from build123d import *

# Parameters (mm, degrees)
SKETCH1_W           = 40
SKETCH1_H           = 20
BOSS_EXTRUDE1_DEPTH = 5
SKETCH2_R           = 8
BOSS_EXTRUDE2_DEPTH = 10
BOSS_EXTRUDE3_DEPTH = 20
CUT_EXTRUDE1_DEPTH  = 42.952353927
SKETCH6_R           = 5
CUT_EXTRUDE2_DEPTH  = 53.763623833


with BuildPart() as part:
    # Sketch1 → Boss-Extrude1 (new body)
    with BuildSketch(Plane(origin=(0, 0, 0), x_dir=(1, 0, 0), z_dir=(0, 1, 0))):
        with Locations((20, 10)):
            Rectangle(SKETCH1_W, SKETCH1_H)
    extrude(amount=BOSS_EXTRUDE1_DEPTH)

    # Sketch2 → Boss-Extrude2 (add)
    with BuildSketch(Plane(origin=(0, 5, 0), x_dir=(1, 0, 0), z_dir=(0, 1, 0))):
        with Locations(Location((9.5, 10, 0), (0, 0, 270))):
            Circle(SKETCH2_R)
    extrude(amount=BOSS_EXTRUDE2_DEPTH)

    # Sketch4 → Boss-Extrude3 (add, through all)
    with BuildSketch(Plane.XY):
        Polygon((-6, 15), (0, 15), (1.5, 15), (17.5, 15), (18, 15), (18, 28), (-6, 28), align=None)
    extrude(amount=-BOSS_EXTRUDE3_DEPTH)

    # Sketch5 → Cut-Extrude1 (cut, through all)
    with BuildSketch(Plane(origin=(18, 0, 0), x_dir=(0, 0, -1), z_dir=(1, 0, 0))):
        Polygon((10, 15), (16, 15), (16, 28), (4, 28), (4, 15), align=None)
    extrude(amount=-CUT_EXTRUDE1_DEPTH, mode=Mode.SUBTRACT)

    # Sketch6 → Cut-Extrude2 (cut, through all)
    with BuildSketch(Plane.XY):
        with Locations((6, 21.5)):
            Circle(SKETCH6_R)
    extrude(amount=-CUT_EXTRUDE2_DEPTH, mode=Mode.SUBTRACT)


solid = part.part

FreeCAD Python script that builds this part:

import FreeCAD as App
import Part
import Sketcher
from FreeCAD import Vector

doc = App.newDocument("Part")
body = doc.addObject("PartDesign::Body", "Body")

sketch1 = body.newObject("Sketcher::SketchObject", "Sketch")
sketch1.AttachmentSupport = (doc.getObject("XZ_Plane"), [""])
sketch1.MapMode = "FlatFace"
sketch1.addGeometry(Part.LineSegment(Vector(0, -20, 0), Vector(0, 0, 0)), False)
sketch1.addGeometry(Part.LineSegment(Vector(0, 0, 0), Vector(40, 0, 0)), False)
sketch1.addGeometry(Part.LineSegment(Vector(40, 0, 0), Vector(40, -20, 0)), False)
sketch1.addGeometry(Part.LineSegment(Vector(40, -20, 0), Vector(0, -20, 0)), False)
sketch1.addConstraint(Sketcher.Constraint("Coincident", 0, 2, 1, 1))
sketch1.addConstraint(Sketcher.Constraint("Coincident", 1, 2, 2, 1))
sketch1.addConstraint(Sketcher.Constraint("Coincident", 2, 2, 3, 1))
sketch1.addConstraint(Sketcher.Constraint("Coincident", 3, 2, 0, 1))
sketch1.addConstraint(Sketcher.Constraint("Vertical", 0))
sketch1.addConstraint(Sketcher.Constraint("Horizontal", 1))
sketch1.addConstraint(Sketcher.Constraint("Vertical", 2))
sketch1.addConstraint(Sketcher.Constraint("Horizontal", 3))
sketch1.addConstraint(Sketcher.Constraint("Coincident", 0, 2, -1, 1))
sketch1.addConstraint(Sketcher.Constraint("DistanceX", 1, 1, 1, 2, 40.0))
sketch1.addConstraint(Sketcher.Constraint("DistanceY", 0, 1, 0, 2, 20.0))
pad1 = body.newObject("PartDesign::Pad", "Pad")
pad1.Profile = sketch1
pad1.Length = 5
pad1.Reversed = True

sketch2 = body.newObject("Sketcher::SketchObject", "Sketch001")
sketch2.AttachmentSupport = (doc.getObject("XZ_Plane"), [""])
sketch2.MapMode = "FlatFace"
sketch2.AttachmentOffset = App.Placement(Vector(0, 0, -5), App.Rotation())
sketch2.addGeometry(Part.Circle(Vector(9.5, -10, 0), Vector(0, 0, 1), 8), False)
sketch2.addConstraint(Sketcher.Constraint("Diameter", 0, 16.0))
sketch2.addConstraint(Sketcher.Constraint("DistanceY", 0, 3, -1, 1, 10.0))
sketch2.addConstraint(Sketcher.Constraint("DistanceX", -1, 1, 0, 3, 9.5))
pad2 = body.newObject("PartDesign::Pad", "Pad001")
pad2.Profile = sketch2
pad2.Length = 10
pad2.Reversed = True

sketch3 = body.newObject("Sketcher::SketchObject", "Sketch002")
sketch3.AttachmentSupport = (doc.getObject("XY_Plane"), [""])
sketch3.MapMode = "FlatFace"
sketch3.addGeometry(Part.LineSegment(Vector(-6, 15, 0), Vector(18, 15, 0)), False)
sketch3.addGeometry(Part.LineSegment(Vector(18, 15, 0), Vector(18, 28, 0)), False)
sketch3.addGeometry(Part.LineSegment(Vector(18, 28, 0), Vector(-6, 28, 0)), False)
sketch3.addGeometry(Part.LineSegment(Vector(-6, 28, 0), Vector(-6, 15, 0)), False)
sketch3.addConstraint(Sketcher.Constraint("Coincident", 0, 2, 1, 1))
sketch3.addConstraint(Sketcher.Constraint("Coincident", 1, 2, 2, 1))
sketch3.addConstraint(Sketcher.Constraint("Coincident", 2, 2, 3, 1))
sketch3.addConstraint(Sketcher.Constraint("Coincident", 3, 2, 0, 1))
sketch3.addConstraint(Sketcher.Constraint("Horizontal", 0))
sketch3.addConstraint(Sketcher.Constraint("Vertical", 1))
sketch3.addConstraint(Sketcher.Constraint("Horizontal", 2))
sketch3.addConstraint(Sketcher.Constraint("Vertical", 3))
sketch3.addConstraint(Sketcher.Constraint("DistanceX", 0, 1, 0, 2, 24.0))
sketch3.addConstraint(Sketcher.Constraint("DistanceY", 1, 1, 1, 2, 13.0))
sketch3.addConstraint(Sketcher.Constraint("DistanceX", -1, 1, 0, 2, 18.0))
sketch3.addConstraint(Sketcher.Constraint("DistanceY", -1, 1, 0, 2, 15.0))
pad3 = body.newObject("PartDesign::Pad", "Pad002")
pad3.Profile = sketch3
pad3.Length = 20
pad3.Reversed = True

sketch4 = body.newObject("Sketcher::SketchObject", "Sketch003")
sketch4.AttachmentSupport = (doc.getObject("YZ_Plane"), [""])
sketch4.MapMode = "FlatFace"
sketch4.AttachmentOffset = App.Placement(Vector(0, 0, 18), App.Rotation())
sketch4.addGeometry(Part.LineSegment(Vector(15, -16, 0), Vector(28, -16, 0)), False)
sketch4.addGeometry(Part.LineSegment(Vector(28, -16, 0), Vector(28, -4, 0)), False)
sketch4.addGeometry(Part.LineSegment(Vector(28, -4, 0), Vector(15, -4, 0)), False)
sketch4.addGeometry(Part.LineSegment(Vector(15, -4, 0), Vector(15, -16, 0)), False)
sketch4.addConstraint(Sketcher.Constraint("Coincident", 0, 2, 1, 1))
sketch4.addConstraint(Sketcher.Constraint("Coincident", 1, 2, 2, 1))
sketch4.addConstraint(Sketcher.Constraint("Coincident", 2, 2, 3, 1))
sketch4.addConstraint(Sketcher.Constraint("Coincident", 3, 2, 0, 1))
sketch4.addConstraint(Sketcher.Constraint("Horizontal", 0))
sketch4.addConstraint(Sketcher.Constraint("Vertical", 1))
sketch4.addConstraint(Sketcher.Constraint("Horizontal", 2))
sketch4.addConstraint(Sketcher.Constraint("Vertical", 3))
sketch4.addConstraint(Sketcher.Constraint("DistanceX", 0, 1, 0, 2, 13.0))
sketch4.addConstraint(Sketcher.Constraint("DistanceY", 1, 1, 1, 2, 12.0))
sketch4.addConstraint(Sketcher.Constraint("DistanceX", -1, 1, 0, 2, 28.0))
sketch4.addConstraint(Sketcher.Constraint("DistanceY", 0, 2, -1, 1, 16.0))
pocket1 = body.newObject("PartDesign::Pocket", "Pocket")
pocket1.Profile = sketch4
pocket1.Type = "ThroughAll"

sketch5 = body.newObject("Sketcher::SketchObject", "Sketch004")
sketch5.AttachmentSupport = (doc.getObject("XY_Plane"), [""])
sketch5.MapMode = "FlatFace"
sketch5.addGeometry(Part.Circle(Vector(6, 21.5, 0), Vector(0, 0, 1), 5), False)
sketch5.addConstraint(Sketcher.Constraint("Diameter", 0, 10.0))
sketch5.addConstraint(Sketcher.Constraint("DistanceX", -1, 1, 0, 3, 6.0))
sketch5.addConstraint(Sketcher.Constraint("DistanceY", -1, 1, 0, 3, 21.5))
pocket2 = body.newObject("PartDesign::Pocket", "Pocket001")
pocket2.Profile = sketch5
pocket2.Type = "ThroughAll"

doc.recompute()
